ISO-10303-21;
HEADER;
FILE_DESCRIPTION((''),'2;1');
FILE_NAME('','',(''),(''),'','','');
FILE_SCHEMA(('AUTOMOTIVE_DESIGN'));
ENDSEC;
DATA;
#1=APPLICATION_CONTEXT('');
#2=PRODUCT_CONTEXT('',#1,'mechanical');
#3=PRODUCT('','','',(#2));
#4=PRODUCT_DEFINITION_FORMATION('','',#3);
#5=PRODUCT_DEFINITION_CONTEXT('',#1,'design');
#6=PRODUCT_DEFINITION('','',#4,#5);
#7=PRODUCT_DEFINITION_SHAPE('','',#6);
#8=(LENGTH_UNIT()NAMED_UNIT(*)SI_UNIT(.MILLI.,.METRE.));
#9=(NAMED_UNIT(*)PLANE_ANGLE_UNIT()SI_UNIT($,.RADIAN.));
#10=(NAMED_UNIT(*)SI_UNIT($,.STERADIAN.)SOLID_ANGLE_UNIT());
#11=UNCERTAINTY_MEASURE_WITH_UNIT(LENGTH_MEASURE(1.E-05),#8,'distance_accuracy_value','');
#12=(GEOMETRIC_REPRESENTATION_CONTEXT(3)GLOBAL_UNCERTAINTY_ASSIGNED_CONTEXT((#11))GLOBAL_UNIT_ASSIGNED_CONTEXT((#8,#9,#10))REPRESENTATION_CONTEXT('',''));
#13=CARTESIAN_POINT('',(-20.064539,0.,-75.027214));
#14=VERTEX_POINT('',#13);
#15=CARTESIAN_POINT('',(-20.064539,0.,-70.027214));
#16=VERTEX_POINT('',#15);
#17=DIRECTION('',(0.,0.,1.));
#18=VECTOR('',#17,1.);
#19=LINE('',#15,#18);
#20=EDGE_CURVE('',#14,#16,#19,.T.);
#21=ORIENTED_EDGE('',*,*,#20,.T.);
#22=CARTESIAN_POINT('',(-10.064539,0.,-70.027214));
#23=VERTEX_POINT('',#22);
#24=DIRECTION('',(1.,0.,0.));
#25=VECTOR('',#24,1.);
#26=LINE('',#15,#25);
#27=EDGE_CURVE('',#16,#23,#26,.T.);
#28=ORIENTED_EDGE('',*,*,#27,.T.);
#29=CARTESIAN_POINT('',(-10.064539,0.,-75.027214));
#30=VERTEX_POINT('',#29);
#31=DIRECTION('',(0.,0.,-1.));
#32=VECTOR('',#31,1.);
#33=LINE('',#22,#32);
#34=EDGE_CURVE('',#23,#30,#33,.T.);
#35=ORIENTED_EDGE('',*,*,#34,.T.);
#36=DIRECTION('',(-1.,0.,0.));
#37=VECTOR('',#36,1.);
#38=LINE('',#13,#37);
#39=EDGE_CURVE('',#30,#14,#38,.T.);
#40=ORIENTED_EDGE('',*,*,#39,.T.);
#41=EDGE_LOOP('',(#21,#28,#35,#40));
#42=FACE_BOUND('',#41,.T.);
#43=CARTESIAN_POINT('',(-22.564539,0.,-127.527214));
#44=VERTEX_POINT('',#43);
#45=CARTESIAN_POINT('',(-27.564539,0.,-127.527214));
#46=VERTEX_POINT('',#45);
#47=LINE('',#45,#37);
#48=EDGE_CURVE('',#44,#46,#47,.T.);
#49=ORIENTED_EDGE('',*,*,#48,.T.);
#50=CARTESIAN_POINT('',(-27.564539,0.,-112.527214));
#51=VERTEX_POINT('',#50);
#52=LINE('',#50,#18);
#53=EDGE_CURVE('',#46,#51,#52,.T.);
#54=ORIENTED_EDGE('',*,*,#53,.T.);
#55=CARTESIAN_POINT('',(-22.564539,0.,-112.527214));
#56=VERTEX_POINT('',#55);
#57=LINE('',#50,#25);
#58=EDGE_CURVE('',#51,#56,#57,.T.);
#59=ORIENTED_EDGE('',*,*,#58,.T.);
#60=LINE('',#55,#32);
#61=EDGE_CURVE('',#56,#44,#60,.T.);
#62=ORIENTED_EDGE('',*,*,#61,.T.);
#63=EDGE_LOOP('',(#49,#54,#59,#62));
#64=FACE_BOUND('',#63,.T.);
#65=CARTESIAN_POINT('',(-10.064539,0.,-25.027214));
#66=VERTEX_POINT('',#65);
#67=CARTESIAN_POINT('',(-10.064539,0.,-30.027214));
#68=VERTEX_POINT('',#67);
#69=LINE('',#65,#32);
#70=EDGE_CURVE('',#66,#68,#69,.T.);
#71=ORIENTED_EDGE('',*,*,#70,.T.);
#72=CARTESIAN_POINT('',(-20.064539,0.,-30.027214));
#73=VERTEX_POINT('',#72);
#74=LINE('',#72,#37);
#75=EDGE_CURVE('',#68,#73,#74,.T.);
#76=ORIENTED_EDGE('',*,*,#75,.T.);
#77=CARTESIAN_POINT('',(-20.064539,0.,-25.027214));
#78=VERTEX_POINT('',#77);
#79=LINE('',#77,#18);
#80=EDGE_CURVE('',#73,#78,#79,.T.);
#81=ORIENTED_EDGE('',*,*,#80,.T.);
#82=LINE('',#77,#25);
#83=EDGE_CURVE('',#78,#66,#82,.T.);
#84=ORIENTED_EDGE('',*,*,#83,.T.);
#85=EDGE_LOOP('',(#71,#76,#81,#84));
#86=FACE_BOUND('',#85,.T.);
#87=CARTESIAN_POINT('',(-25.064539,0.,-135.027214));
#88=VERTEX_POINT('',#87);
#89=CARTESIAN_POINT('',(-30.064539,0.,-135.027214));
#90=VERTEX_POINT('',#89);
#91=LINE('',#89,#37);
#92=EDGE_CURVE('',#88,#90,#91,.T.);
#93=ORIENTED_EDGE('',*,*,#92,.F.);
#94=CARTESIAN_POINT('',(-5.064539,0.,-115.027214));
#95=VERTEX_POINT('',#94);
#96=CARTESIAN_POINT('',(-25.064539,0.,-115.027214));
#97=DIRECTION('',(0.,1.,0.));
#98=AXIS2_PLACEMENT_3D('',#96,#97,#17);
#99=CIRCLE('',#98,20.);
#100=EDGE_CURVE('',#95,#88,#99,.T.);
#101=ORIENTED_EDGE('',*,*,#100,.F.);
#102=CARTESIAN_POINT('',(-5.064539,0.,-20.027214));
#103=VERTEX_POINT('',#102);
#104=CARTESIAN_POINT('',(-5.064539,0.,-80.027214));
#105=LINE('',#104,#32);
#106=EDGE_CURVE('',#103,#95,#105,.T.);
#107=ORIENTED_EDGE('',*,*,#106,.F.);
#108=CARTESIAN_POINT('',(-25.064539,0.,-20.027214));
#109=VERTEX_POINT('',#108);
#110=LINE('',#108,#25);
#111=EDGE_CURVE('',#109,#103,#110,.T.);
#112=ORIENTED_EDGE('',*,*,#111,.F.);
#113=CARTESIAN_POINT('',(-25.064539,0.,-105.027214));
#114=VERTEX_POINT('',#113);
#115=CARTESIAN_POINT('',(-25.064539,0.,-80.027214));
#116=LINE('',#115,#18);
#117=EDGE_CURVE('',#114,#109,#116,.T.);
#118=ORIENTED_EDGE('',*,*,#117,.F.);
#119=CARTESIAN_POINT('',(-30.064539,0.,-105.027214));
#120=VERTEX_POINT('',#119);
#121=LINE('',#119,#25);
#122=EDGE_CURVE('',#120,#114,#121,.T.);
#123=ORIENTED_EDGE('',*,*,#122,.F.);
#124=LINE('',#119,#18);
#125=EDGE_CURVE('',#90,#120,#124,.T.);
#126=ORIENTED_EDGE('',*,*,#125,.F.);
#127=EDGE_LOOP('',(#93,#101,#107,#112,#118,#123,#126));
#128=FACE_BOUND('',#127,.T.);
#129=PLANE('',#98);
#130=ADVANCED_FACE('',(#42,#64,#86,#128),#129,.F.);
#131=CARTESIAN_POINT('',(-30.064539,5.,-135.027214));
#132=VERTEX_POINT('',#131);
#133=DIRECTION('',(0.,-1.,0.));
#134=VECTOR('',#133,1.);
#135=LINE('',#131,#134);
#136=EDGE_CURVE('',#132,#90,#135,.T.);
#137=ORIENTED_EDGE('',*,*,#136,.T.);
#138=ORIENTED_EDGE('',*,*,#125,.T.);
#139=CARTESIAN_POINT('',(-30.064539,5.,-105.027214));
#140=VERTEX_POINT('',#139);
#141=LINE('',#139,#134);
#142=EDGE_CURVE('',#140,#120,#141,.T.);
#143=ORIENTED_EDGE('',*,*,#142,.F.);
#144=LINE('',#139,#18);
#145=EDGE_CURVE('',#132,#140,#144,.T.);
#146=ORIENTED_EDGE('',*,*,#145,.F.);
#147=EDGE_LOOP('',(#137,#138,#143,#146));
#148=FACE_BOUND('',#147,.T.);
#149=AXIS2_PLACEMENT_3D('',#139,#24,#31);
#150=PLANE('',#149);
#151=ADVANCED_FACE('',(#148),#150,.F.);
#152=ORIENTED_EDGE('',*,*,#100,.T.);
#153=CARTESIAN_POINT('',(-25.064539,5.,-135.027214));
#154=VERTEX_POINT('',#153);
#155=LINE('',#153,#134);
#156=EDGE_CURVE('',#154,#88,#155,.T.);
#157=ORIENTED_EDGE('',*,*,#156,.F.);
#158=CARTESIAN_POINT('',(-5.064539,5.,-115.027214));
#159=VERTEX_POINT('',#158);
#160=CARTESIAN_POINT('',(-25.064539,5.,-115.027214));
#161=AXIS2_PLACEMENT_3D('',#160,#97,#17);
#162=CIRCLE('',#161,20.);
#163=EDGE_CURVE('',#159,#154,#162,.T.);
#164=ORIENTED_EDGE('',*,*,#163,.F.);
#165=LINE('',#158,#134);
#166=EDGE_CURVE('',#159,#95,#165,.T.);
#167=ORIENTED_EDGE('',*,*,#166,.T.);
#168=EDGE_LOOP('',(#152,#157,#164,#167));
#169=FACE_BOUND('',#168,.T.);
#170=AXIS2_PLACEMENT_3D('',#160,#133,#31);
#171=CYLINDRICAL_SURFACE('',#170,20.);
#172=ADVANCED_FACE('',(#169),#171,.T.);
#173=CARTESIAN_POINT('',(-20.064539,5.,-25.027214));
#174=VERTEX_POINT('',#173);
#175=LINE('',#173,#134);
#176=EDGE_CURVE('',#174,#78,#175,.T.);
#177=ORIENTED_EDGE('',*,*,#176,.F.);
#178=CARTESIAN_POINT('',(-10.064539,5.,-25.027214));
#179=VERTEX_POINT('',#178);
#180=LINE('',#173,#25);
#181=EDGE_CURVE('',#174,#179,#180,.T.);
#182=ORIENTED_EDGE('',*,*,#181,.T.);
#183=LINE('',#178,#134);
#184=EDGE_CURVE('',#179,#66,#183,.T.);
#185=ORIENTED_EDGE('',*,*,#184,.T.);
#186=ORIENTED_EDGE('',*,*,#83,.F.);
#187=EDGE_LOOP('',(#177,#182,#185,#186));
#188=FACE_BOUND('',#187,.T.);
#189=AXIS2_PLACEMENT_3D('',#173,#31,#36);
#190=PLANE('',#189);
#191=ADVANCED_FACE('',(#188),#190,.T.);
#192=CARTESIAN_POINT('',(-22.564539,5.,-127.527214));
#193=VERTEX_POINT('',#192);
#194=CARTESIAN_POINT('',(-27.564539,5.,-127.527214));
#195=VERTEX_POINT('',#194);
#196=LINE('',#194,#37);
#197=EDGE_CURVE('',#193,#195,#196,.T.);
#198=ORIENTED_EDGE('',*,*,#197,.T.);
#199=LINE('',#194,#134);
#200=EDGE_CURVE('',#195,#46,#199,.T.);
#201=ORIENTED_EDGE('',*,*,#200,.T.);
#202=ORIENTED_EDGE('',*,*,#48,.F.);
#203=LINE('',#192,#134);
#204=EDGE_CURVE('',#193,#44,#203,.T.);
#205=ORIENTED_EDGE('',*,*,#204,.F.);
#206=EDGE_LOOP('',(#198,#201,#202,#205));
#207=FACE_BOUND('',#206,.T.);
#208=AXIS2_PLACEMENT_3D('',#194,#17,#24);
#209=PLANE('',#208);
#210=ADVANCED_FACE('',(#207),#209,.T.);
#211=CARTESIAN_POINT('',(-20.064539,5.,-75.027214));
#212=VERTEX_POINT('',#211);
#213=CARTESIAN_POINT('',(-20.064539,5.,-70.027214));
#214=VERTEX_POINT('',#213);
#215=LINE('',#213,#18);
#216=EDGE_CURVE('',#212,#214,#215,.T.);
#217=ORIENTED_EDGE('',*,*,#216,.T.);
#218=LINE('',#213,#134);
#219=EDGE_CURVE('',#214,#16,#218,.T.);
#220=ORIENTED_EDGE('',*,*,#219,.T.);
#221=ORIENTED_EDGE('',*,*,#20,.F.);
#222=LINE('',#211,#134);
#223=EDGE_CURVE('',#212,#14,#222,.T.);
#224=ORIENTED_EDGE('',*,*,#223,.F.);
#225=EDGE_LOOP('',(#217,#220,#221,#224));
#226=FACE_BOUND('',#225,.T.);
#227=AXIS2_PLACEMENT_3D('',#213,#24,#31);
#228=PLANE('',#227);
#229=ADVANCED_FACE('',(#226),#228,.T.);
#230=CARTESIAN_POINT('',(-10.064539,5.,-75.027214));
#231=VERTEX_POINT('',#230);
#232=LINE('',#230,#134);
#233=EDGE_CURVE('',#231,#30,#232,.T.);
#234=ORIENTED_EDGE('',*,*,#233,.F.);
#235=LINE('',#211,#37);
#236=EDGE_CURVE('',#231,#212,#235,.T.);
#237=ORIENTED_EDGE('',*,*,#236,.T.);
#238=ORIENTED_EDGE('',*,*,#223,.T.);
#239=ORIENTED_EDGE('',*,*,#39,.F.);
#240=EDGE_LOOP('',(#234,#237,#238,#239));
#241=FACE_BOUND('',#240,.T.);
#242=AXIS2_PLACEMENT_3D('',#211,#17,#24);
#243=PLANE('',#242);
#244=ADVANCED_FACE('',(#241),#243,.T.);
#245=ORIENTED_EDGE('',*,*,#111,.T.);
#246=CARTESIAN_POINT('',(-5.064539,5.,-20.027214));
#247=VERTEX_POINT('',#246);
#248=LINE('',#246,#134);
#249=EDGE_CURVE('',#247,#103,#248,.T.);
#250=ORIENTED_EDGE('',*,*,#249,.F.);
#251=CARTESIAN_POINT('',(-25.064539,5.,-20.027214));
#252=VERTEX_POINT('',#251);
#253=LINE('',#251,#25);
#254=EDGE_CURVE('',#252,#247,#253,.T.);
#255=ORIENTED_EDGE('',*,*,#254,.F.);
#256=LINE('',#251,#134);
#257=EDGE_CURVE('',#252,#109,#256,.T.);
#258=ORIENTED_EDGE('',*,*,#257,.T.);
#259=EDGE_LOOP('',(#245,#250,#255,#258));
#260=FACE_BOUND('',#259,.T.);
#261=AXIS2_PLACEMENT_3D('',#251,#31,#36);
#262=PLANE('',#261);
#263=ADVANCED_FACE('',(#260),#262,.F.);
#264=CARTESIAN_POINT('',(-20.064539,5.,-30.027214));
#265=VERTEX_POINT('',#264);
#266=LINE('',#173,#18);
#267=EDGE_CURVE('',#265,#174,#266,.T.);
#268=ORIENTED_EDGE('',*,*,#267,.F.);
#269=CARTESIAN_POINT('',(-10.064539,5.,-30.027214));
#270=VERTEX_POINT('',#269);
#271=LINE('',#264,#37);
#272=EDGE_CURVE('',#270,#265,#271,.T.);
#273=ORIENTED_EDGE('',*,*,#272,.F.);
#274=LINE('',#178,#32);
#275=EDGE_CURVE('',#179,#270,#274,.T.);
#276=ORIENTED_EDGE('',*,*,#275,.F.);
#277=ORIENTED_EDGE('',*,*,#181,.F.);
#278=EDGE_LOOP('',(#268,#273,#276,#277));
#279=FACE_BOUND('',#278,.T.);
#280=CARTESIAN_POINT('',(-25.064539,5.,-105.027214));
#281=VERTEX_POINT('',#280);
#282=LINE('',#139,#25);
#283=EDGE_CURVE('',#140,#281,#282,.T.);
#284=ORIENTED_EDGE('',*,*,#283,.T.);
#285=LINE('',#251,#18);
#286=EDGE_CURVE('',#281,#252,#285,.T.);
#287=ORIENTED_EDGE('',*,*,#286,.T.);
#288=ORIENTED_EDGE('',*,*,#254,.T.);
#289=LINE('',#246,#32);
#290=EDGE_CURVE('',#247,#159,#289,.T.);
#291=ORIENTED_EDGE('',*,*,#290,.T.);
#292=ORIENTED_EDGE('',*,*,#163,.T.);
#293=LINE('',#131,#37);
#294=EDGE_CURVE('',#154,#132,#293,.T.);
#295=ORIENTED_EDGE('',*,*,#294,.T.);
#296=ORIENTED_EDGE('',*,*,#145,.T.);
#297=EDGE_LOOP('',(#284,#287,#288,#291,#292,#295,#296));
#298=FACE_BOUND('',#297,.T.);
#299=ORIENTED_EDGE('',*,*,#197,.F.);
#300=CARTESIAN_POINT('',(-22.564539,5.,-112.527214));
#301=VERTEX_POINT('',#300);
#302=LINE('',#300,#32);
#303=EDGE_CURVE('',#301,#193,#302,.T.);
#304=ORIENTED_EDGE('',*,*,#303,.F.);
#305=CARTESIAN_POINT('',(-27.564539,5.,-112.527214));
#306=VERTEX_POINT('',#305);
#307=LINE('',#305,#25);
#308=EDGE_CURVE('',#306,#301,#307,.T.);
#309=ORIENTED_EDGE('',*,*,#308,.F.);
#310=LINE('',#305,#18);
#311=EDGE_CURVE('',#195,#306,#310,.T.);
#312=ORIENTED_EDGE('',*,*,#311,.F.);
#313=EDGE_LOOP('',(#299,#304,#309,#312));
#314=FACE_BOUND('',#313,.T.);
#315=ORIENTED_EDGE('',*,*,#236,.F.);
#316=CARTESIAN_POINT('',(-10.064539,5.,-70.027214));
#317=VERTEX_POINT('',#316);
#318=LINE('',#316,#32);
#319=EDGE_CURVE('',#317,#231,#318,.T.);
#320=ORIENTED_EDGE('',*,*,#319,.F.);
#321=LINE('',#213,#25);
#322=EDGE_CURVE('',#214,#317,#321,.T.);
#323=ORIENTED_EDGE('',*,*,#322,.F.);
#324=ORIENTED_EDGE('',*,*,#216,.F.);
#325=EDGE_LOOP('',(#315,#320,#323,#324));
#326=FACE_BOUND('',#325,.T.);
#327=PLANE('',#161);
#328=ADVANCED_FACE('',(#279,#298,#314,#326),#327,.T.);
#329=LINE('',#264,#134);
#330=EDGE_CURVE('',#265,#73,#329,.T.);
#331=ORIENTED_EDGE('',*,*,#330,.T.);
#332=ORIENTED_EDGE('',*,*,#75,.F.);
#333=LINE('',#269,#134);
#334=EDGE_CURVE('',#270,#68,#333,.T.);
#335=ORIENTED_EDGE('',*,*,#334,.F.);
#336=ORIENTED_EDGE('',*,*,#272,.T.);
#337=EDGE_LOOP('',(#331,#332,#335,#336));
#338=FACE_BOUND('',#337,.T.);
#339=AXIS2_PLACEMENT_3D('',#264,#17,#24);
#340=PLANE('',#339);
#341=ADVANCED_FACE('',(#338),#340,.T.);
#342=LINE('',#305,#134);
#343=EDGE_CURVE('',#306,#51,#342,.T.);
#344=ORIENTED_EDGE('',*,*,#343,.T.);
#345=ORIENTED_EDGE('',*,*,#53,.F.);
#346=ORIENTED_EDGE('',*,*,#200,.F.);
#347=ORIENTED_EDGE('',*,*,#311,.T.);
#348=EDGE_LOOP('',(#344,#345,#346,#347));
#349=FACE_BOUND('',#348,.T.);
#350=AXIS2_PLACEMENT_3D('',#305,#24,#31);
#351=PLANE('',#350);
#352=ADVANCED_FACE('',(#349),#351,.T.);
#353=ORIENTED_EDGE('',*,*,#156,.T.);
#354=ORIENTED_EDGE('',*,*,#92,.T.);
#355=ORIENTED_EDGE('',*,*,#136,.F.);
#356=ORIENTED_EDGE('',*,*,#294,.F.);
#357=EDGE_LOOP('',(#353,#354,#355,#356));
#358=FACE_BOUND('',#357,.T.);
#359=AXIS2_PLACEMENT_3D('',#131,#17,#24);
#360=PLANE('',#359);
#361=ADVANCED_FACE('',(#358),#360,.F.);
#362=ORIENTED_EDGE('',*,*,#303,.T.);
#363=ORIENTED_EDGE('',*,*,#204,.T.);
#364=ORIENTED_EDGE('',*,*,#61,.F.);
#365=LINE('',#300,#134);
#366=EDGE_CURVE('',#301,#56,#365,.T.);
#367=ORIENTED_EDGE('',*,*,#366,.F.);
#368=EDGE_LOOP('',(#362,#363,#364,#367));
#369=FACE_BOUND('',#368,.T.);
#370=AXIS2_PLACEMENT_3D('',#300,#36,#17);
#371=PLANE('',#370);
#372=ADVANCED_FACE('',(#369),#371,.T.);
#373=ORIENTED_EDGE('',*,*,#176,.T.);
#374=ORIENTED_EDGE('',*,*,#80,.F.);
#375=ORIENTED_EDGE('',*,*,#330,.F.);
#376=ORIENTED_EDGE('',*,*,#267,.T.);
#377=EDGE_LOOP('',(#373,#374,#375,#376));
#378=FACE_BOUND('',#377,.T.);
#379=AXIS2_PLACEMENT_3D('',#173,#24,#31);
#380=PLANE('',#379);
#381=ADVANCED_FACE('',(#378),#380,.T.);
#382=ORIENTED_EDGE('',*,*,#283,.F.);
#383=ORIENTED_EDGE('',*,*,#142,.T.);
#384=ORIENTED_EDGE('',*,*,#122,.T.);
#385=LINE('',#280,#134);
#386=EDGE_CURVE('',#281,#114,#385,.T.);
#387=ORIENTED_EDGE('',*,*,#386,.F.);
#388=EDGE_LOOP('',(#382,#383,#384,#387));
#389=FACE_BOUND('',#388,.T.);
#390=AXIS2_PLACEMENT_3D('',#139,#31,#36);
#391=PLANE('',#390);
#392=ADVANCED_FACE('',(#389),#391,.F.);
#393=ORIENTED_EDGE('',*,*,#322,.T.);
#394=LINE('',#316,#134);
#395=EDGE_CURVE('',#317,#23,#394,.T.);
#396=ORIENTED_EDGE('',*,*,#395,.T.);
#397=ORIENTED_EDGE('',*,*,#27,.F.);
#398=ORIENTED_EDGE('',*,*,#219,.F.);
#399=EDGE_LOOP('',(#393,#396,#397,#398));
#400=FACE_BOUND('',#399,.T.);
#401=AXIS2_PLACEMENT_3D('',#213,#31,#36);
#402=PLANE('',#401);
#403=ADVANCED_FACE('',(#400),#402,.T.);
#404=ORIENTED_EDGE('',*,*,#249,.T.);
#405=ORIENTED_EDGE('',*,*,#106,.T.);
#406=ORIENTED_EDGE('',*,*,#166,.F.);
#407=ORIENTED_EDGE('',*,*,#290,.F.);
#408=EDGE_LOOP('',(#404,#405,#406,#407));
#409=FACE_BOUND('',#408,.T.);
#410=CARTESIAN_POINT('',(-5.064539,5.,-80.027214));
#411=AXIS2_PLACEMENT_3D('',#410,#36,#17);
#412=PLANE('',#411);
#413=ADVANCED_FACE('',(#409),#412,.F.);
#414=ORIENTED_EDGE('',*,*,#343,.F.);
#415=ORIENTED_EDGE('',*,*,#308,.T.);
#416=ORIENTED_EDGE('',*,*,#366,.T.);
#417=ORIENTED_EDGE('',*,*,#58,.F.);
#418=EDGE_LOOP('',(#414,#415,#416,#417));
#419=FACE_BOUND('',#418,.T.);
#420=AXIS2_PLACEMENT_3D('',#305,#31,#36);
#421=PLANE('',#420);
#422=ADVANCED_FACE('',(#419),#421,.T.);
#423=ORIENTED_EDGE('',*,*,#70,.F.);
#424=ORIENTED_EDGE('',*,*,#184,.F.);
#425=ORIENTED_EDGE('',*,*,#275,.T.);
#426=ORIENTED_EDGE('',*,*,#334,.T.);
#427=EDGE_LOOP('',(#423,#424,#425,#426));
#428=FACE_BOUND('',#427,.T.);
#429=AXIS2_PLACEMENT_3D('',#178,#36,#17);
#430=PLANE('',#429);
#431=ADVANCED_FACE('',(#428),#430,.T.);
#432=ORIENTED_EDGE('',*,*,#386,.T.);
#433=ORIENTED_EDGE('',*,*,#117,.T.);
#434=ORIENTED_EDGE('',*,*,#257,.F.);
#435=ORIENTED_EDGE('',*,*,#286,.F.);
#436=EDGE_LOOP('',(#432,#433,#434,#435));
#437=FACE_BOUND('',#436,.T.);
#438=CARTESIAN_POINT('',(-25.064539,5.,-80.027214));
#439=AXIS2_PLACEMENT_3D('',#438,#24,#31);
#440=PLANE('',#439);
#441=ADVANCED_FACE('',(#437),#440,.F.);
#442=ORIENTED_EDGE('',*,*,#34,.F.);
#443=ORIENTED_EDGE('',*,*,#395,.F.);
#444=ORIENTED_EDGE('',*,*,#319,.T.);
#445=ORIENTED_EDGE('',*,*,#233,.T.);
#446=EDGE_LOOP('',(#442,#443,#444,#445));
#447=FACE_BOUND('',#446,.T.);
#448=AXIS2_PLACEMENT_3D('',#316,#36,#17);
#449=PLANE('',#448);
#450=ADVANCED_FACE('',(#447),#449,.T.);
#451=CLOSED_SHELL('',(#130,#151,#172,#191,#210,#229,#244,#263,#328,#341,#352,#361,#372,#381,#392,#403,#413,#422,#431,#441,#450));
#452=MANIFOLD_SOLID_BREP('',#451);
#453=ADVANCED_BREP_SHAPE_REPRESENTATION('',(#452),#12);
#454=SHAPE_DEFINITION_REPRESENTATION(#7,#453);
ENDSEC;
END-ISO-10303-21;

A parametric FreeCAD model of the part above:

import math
import FreeCAD as App
import Part
import Sketcher
from FreeCAD import Vector


def add_polygon(sketch, points):
    """Adds a closed chain of lines whose ends are joined by coincident constraints."""
    first, n = sketch.GeometryCount, len(points)
    for a, b in zip(points, points[1:] + points[:1]):
        sketch.addGeometry(Part.LineSegment(App.Vector(*a, 0), App.Vector(*b, 0)), False)
    for i in range(n):
        sketch.addConstraint(Sketcher.Constraint("Coincident", first + i, 2, first + (i + 1) % n, 1))

doc = App.newDocument("Part")
body = doc.addObject("PartDesign::Body", "Body")

# Sketch on XZ plane
sketch1 = body.newObject("Sketcher::SketchObject", "Sketch")
sketch1.AttachmentSupport = (doc.getObject("XZ_Plane"), [""])
sketch1.MapMode = "FlatFace"
sketch1.addGeometry(Part.LineSegment(Vector(-25, -20, 0), Vector(-5, -20, 0)), False)  # 0
sketch1.addGeometry(Part.LineSegment(Vector(-5, -20, 0), Vector(-5, -115, 0)), False)  # 1
sketch1.addGeometry(Part.ArcOfCircle(Part.Circle(Vector(-25, -115, 0), Vector(0, 0, 1), 20), math.radians(-90), math.radians(0)), False)  # 2
sketch1.addGeometry(Part.LineSegment(Vector(-25, -135, 0), Vector(-30, -135, 0)), False)  # 3
sketch1.addGeometry(Part.LineSegment(Vector(-30, -135, 0), Vector(-30, -105, 0)), False)  # 4
sketch1.addGeometry(Part.LineSegment(Vector(-30, -105, 0), Vector(-25, -105, 0)), False)  # 5
sketch1.addGeometry(Part.LineSegment(Vector(-25, -105, 0), Vector(-25, -20, 0)), False)  # 6
add_polygon(sketch1, [(-10, -25), (-20, -25), (-20, -30), (-10, -30)])  # lines 7-10
add_polygon(sketch1, [(-10, -70), (-20, -70), (-20, -75), (-10, -75)])  # lines 11-14
add_polygon(sketch1, [(-23, -113), (-28, -113), (-28, -128), (-23, -128)])  # lines 15-18
sketch1.addConstraint(Sketcher.Constraint("Coincident", 0, 2, 1, 1))
sketch1.addConstraint(Sketcher.Constraint("Tangent", 1, 2, 2, 2))
sketch1.addConstraint(Sketcher.Constraint("Tangent", 2, 1, 3, 1))
sketch1.addConstraint(Sketcher.Constraint("Coincident", 3, 2, 4, 1))
sketch1.addConstraint(Sketcher.Constraint("Coincident", 4, 2, 5, 1))
sketch1.addConstraint(Sketcher.Constraint("Coincident", 5, 2, 6, 1))
sketch1.addConstraint(Sketcher.Constraint("Coincident", 6, 2, 0, 1))
sketch1.addConstraint(Sketcher.Constraint("Horizontal", 0))
sketch1.addConstraint(Sketcher.Constraint("Vertical", 1))
sketch1.addConstraint(Sketcher.Constraint("Horizontal", 3))
sketch1.addConstraint(Sketcher.Constraint("Vertical", 4))
sketch1.addConstraint(Sketcher.Constraint("Horizontal", 5))
sketch1.addConstraint(Sketcher.Constraint("Vertical", 6))
sketch1.addConstraint(Sketcher.Constraint("Horizontal", 7))
sketch1.addConstraint(Sketcher.Constraint("Vertical", 8))
sketch1.addConstraint(Sketcher.Constraint("Horizontal", 9))
sketch1.addConstraint(Sketcher.Constraint("Vertical", 10))
sketch1.addConstraint(Sketcher.Constraint("Horizontal", 11))
sketch1.addConstraint(Sketcher.Constraint("Vertical", 12))
sketch1.addConstraint(Sketcher.Constraint("Horizontal", 13))
sketch1.addConstraint(Sketcher.Constraint("Vertical", 14))
sketch1.addConstraint(Sketcher.Constraint("Horizontal", 15))
sketch1.addConstraint(Sketcher.Constraint("Vertical", 16))
sketch1.addConstraint(Sketcher.Constraint("Horizontal", 17))
sketch1.addConstraint(Sketcher.Constraint("Vertical", 18))
sketch1.addConstraint(Sketcher.Constraint("Vertical", 2, 1, 5, 2))
sketch1.addConstraint(Sketcher.Constraint("Vertical", 8, 2, 11, 2))
sketch1.addConstraint(Sketcher.Constraint("Vertical", 10, 2, 13, 2))
sketch1.addConstraint(Sketcher.Constraint("Equal", 5, 15))
sketch1.addConstraint(Sketcher.Constraint("Equal", 17, 8))
sketch1.addConstraint(Sketcher.Constraint("Equal", 10, 12))
sketch1.addConstraint(Sketcher.Constraint("Radius", 2, 20.0))
sketch1.addConstraint(Sketcher.Constraint("DistanceX", 3, 2, 3, 1, 5.0))
sketch1.addConstraint(Sketcher.Constraint("DistanceX", 7, 2, 7, 1, 10.0))
sketch1.addConstraint(Sketcher.Constraint("DistanceY", 1, 2, 1, 1, 95.0))
sketch1.addConstraint(Sketcher.Constraint("DistanceY", 4, 1, 4, 2, 30.0))
sketch1.addConstraint(Sketcher.Constraint("DistanceY", 16, 2, 16, 1, 15.0))
sketch1.addConstraint(Sketcher.Constraint("DistanceX", 6, 2, 7, 2, 5.0))
sketch1.addConstraint(Sketcher.Constraint("DistanceY", 7, 2, 6, 2, 5.0))
sketch1.addConstraint(Sketcher.Constraint("DistanceY", 5, 2, 11, 2, 35.0))
sketch1.addConstraint(Sketcher.Constraint("DistanceX", 15, 2, 2, 3, 2.5))
sketch1.addConstraint(Sketcher.Constraint("DistanceY", 2, 3, 15, 2, 2.5))
sketch1.addConstraint(Sketcher.Constraint("DistanceX", 2, 3, -1, 1, 25.064539))
sketch1.addConstraint(Sketcher.Constraint("DistanceY", 2, 3, -1, 1, 115.027214))
pad1 = body.newObject("PartDesign::Pad", "Pad")
pad1.Profile = sketch1
pad1.Length = 5
pad1.Reversed = True

doc.recompute()
